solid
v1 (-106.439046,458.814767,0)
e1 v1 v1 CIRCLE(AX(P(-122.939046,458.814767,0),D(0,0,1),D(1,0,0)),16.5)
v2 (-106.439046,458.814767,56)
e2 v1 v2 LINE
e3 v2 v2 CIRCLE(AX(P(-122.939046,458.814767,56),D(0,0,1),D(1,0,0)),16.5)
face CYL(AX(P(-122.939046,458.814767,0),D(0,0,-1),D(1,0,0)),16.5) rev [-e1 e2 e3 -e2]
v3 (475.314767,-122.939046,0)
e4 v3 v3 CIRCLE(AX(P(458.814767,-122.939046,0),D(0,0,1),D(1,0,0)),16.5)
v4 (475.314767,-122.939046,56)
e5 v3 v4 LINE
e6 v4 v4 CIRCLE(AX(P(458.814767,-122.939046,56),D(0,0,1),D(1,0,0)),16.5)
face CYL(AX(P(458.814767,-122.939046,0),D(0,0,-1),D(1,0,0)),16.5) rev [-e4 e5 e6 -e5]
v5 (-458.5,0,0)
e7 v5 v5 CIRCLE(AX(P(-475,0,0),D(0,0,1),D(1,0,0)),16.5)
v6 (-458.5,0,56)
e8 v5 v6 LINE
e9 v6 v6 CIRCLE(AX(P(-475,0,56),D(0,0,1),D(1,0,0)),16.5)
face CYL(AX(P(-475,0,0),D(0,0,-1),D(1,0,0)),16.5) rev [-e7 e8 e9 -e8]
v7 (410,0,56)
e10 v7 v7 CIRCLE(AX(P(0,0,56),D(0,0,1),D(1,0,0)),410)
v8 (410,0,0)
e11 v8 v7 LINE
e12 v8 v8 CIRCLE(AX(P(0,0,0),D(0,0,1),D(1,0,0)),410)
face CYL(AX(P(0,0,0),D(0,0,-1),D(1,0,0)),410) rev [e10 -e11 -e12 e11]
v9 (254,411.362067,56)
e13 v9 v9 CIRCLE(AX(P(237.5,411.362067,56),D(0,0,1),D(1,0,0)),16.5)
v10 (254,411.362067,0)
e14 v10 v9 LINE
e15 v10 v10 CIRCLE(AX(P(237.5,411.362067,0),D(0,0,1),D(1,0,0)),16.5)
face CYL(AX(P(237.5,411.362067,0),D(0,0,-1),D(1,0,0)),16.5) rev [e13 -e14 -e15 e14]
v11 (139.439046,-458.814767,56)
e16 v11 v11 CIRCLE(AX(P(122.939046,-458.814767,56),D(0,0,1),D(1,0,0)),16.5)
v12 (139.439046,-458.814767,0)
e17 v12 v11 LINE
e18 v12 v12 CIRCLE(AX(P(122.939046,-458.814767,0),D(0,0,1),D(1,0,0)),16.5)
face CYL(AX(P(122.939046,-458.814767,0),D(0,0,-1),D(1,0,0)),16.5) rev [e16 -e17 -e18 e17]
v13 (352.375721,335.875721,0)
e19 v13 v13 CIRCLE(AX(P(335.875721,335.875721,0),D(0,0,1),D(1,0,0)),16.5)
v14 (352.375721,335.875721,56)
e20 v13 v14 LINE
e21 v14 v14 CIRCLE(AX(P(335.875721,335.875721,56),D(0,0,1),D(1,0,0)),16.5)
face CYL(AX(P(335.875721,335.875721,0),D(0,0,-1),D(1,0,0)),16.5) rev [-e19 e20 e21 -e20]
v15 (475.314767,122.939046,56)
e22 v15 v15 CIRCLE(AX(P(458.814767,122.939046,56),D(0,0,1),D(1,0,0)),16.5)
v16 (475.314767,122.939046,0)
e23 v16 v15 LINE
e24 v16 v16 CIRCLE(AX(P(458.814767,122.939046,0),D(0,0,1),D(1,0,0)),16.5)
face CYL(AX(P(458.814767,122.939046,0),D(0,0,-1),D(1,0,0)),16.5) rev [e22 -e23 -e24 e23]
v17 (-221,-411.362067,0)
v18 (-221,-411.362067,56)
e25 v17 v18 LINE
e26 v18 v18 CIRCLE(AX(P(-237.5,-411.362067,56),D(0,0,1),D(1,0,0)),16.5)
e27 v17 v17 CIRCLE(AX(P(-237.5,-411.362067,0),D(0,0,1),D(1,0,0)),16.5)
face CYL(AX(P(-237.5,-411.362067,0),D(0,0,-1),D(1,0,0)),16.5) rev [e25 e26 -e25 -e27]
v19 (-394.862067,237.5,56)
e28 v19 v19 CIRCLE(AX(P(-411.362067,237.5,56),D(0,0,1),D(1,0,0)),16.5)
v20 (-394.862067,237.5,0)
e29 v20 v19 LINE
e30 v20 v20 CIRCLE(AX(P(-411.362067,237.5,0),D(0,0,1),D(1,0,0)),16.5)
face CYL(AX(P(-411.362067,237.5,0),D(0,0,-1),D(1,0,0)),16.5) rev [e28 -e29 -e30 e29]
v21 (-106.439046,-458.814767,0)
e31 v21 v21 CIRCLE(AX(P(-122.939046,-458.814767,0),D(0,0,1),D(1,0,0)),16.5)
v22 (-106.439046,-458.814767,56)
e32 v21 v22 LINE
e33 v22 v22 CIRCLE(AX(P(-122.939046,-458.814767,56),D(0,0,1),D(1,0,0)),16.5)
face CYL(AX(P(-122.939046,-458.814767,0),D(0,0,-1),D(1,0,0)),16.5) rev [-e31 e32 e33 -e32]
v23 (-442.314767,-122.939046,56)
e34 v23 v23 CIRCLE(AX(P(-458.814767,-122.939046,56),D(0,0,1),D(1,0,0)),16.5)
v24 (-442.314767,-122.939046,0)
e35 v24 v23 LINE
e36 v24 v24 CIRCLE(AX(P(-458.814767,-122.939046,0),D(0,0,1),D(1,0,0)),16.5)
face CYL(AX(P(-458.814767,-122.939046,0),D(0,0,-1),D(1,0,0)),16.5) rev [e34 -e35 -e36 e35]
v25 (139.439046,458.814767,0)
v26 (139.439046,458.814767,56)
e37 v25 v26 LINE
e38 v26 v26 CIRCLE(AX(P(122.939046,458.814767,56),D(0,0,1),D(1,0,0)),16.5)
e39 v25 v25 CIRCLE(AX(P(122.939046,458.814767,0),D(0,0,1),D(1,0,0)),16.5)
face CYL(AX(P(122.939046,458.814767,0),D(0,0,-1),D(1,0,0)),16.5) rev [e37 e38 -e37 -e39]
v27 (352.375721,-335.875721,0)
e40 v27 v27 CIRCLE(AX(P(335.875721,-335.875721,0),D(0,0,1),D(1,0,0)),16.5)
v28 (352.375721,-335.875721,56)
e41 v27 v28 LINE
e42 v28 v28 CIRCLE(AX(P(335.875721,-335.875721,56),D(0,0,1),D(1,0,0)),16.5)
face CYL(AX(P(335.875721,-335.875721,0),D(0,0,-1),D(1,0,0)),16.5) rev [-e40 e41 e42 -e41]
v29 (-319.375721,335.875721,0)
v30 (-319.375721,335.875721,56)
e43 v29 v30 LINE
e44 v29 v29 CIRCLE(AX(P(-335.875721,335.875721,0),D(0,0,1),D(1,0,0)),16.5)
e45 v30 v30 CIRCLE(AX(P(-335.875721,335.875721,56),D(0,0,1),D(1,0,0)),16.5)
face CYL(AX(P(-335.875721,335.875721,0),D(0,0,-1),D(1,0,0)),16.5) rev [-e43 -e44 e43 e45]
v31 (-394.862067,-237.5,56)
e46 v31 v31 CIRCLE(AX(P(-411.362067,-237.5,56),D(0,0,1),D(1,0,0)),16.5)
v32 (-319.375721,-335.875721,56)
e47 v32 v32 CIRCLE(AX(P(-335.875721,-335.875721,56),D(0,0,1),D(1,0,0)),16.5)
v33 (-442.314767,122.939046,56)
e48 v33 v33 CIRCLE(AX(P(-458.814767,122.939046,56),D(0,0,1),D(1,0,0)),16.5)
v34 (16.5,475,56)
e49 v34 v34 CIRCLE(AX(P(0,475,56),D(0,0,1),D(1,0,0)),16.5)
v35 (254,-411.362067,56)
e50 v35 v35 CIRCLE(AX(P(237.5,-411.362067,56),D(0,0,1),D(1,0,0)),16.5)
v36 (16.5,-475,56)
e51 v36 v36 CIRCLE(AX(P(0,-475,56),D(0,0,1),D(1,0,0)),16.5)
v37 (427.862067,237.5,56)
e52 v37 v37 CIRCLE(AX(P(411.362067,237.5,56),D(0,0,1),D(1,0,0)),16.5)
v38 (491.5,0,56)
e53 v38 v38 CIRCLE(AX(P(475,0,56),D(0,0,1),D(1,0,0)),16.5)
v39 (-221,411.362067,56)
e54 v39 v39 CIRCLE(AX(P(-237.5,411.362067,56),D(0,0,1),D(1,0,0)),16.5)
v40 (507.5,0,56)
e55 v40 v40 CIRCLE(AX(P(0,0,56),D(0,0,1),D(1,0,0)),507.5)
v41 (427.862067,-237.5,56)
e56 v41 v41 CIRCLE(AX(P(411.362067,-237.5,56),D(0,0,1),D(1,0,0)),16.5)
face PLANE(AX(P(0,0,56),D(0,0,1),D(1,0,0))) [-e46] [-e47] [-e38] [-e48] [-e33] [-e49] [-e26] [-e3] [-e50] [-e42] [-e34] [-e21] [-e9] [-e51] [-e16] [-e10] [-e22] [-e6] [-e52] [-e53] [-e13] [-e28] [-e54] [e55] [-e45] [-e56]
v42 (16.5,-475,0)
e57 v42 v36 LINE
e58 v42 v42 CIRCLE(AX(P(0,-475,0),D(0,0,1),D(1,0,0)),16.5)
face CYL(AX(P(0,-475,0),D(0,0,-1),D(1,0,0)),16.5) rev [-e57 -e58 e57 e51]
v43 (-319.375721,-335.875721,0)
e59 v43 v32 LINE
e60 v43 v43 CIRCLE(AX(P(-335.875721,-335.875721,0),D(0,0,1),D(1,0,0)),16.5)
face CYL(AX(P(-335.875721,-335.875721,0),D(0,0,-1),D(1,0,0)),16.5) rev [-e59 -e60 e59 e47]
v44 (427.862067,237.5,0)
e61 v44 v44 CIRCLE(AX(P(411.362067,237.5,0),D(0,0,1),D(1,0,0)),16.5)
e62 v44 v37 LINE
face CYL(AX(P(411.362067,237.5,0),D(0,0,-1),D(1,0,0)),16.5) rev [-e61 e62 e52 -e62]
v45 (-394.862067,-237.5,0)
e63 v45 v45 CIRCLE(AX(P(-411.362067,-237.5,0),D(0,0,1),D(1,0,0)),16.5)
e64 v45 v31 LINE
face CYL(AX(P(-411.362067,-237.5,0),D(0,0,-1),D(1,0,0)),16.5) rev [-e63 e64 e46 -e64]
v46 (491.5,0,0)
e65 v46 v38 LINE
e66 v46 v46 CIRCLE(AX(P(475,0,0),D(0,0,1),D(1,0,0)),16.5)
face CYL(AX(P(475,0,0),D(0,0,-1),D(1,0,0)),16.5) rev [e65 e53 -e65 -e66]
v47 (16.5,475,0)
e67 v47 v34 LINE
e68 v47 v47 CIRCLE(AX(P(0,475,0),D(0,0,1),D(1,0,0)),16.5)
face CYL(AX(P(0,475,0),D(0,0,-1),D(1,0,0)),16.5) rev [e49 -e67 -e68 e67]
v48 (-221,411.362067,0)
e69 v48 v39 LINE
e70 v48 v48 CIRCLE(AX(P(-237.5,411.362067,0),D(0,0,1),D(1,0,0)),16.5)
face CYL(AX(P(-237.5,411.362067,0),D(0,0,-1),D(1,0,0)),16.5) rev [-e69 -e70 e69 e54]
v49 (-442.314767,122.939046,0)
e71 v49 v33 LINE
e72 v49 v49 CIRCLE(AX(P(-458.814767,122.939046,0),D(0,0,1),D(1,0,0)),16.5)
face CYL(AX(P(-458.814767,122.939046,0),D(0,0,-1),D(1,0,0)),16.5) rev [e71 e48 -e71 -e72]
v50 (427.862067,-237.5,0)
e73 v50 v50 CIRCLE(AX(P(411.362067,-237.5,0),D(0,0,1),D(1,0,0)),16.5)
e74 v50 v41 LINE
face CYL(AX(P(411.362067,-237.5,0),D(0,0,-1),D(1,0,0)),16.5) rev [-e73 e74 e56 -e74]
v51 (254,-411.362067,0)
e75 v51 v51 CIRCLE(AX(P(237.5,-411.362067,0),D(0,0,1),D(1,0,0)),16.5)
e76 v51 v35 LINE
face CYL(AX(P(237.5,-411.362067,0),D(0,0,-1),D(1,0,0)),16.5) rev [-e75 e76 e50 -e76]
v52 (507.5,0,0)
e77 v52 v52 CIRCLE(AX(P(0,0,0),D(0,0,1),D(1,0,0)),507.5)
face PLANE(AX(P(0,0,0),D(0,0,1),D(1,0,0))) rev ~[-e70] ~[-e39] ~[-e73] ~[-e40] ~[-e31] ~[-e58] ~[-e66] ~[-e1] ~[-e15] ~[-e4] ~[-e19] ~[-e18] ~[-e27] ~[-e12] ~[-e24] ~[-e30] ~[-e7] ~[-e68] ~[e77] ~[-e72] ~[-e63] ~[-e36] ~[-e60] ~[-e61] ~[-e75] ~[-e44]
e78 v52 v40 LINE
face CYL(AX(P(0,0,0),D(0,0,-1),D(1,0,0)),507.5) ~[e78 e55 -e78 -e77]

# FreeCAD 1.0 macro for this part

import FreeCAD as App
import Part
import Sketcher
Q = App.Units.Quantity

doc = App.newDocument("Part")
body = doc.addObject("PartDesign::Body", "Body")

sketch1 = body.newObject("Sketcher::SketchObject", "Sketch")
sketch1.AttachmentSupport = (doc.getObject("XY_Plane"), [""])
sketch1.MapMode = "FlatFace"
sketch1.addGeometry(Part.Circle(App.Vector(0, 0, 0), App.Vector(0, 0, 1), 507.5), False)
sketch1.addGeometry(Part.Circle(App.Vector(-335.875721, -335.875721, 0), App.Vector(0, 0, 1), 16.5), False)
sketch1.addGeometry(Part.Circle(App.Vector(-122.939046, -458.814767, 0), App.Vector(0, 0, 1), 16.5), False)
sketch1.addGeometry(Part.Circle(App.Vector(-237.5, -411.362067, 0), App.Vector(0, 0, 1), 16.5), False)
sketch1.addGeometry(Part.Circle(App.Vector(-411.362067, -237.5, 0), App.Vector(0, 0, 1), 16.5), False)
sketch1.addGeometry(Part.Circle(App.Vector(-458.814767, -122.939046, 0), App.Vector(0, 0, 1), 16.5), False)
sketch1.addGeometry(Part.Circle(App.Vector(0, -475, 0), App.Vector(0, 0, 1), 16.5), False)
sketch1.addGeometry(Part.Circle(App.Vector(122.939046, -458.814767, 0), App.Vector(0, 0, 1), 16.5), False)
sketch1.addGeometry(Part.Circle(App.Vector(237.5, -411.362067, 0), App.Vector(0, 0, 1), 16.5), False)
sketch1.addGeometry(Part.Circle(App.Vector(335.875721, -335.875721, 0), App.Vector(0, 0, 1), 16.5), False)
sketch1.addGeometry(Part.Circle(App.Vector(411.362067, -237.5, 0), App.Vector(0, 0, 1), 16.5), False)
sketch1.addGeometry(Part.Circle(App.Vector(458.814767, -122.939046, 0), App.Vector(0, 0, 1), 16.5), False)
sketch1.addGeometry(Part.Circle(App.Vector(-475, 0, 0), App.Vector(0, 0, 1), 16.5), False)
sketch1.addGeometry(Part.Circle(App.Vector(-458.814767, 122.939046, 0), App.Vector(0, 0, 1), 16.5), False)
sketch1.addGeometry(Part.Circle(App.Vector(-411.362067, 237.5, 0), App.Vector(0, 0, 1), 16.5), False)
sketch1.addGeometry(Part.Circle(App.Vector(-335.875721, 335.875721, 0), App.Vector(0, 0, 1), 16.5), False)
sketch1.addGeometry(Part.Circle(App.Vector(-237.5, 411.362067, 0), App.Vector(0, 0, 1), 16.5), False)
sketch1.addGeometry(Part.Circle(App.Vector(-122.939046, 458.814767, 0), App.Vector(0, 0, 1), 16.5), False)
sketch1.addGeometry(Part.Circle(App.Vector(0, 0, 0), App.Vector(0, 0, 1), 410), False)
sketch1.addGeometry(Part.Circle(App.Vector(475, 0, 0), App.Vector(0, 0, 1), 16.5), False)
sketch1.addGeometry(Part.Circle(App.Vector(458.814767, 122.939046, 0), App.Vector(0, 0, 1), 16.5), False)
sketch1.addGeometry(Part.Circle(App.Vector(411.362067, 237.5, 0), App.Vector(0, 0, 1), 16.5), False)
sketch1.addGeometry(Part.Circle(App.Vector(0, 475, 0), App.Vector(0, 0, 1), 16.5), False)
sketch1.addGeometry(Part.Circle(App.Vector(237.5, 411.362067, 0), App.Vector(0, 0, 1), 16.5), False)
sketch1.addGeometry(Part.Circle(App.Vector(122.939046, 458.814767, 0), App.Vector(0, 0, 1), 16.5), False)
sketch1.addGeometry(Part.Circle(App.Vector(335.875721, 335.875721, 0), App.Vector(0, 0, 1), 16.5), False)
sketch1.addConstraint(Sketcher.Constraint("Coincident", 0, 3, -1, 1))
sketch1.addConstraint(Sketcher.Constraint("Coincident", 18, 3, -1, 1))
sketch1.addConstraint(Sketcher.Constraint("Equal", 1, 2))
sketch1.addConstraint(Sketcher.Constraint("Equal", 2, 3))
sketch1.addConstraint(Sketcher.Constraint("Equal", 3, 4))
sketch1.addConstraint(Sketcher.Constraint("Equal", 4, 5))
sketch1.addConstraint(Sketcher.Constraint("Equal", 5, 6))
sketch1.addConstraint(Sketcher.Constraint("Equal", 6, 7))
sketch1.addConstraint(Sketcher.Constraint("Equal", 7, 8))
sketch1.addConstraint(Sketcher.Constraint("Equal", 8, 9))
sketch1.addConstraint(Sketcher.Constraint("Equal", 9, 10))
sketch1.addConstraint(Sketcher.Constraint("Equal", 10, 11))
sketch1.addConstraint(Sketcher.Constraint("Equal", 11, 12))
sketch1.addConstraint(Sketcher.Constraint("Equal", 12, 13))
sketch1.addConstraint(Sketcher.Constraint("Equal", 13, 14))
sketch1.addConstraint(Sketcher.Constraint("Equal", 14, 15))
sketch1.addConstraint(Sketcher.Constraint("Equal", 15, 16))
sketch1.addConstraint(Sketcher.Constraint("Equal", 16, 17))
sketch1.addConstraint(Sketcher.Constraint("Equal", 17, 19))
sketch1.addConstraint(Sketcher.Constraint("Equal", 19, 20))
sketch1.addConstraint(Sketcher.Constraint("Equal", 20, 21))
sketch1.addConstraint(Sketcher.Constraint("Equal", 21, 22))
sketch1.addConstraint(Sketcher.Constraint("Equal", 22, 23))
sketch1.addConstraint(Sketcher.Constraint("Equal", 23, 24))
sketch1.addConstraint(Sketcher.Constraint("Equal", 24, 25))
sketch1.addConstraint(Sketcher.Constraint("Symmetric", 11, 3, 13, 3, -1, 1))
sketch1.addConstraint(Sketcher.Constraint("Symmetric", 10, 3, 14, 3, -1, 1))
sketch1.addConstraint(Sketcher.Constraint("Symmetric", 9, 3, 15, 3, -1, 1))
sketch1.addConstraint(Sketcher.Constraint("Symmetric", 8, 3, 16, 3, -1, 1))
sketch1.addConstraint(Sketcher.Constraint("Symmetric", 7, 3, 17, 3, -1, 1))
sketch1.addConstraint(Sketcher.Constraint("Symmetric", 12, 3, 19, 3, -1, 1))
sketch1.addConstraint(Sketcher.Constraint("Symmetric", 5, 3, 20, 3, -1, 1))
sketch1.addConstraint(Sketcher.Constraint("Symmetric", 4, 3, 21, 3, -1, 1))
sketch1.addConstraint(Sketcher.Constraint("Symmetric", 6, 3, 22, 3, -1, 1))
sketch1.addConstraint(Sketcher.Constraint("Symmetric", 3, 3, 23, 3, -1, 1))
sketch1.addConstraint(Sketcher.Constraint("Symmetric", 2, 3, 24, 3, -1, 1))
sketch1.addConstraint(Sketcher.Constraint("Symmetric", 1, 3, 25, 3, -1, 1))
sketch1.addConstraint(Sketcher.Constraint("Symmetric", 2, 3, 7, 3, -2))
sketch1.addConstraint(Sketcher.Constraint("Symmetric", 3, 3, 8, 3, -2))
sketch1.addConstraint(Sketcher.Constraint("Symmetric", 1, 3, 9, 3, -2))
sketch1.addConstraint(Sketcher.Constraint("Symmetric", 4, 3, 10, 3, -2))
sketch1.addConstraint(Sketcher.Constraint("Symmetric", 5, 3, 11, 3, -2))
sketch1.addConstraint(Sketcher.Constraint("PointOnObject", 6, 3, -2))
sketch1.addConstraint(Sketcher.Constraint("PointOnObject", 12, 3, -1))
sketch1.addConstraint(Sketcher.Constraint("Diameter", 0, Q("1015 mm")))
sketch1.addConstraint(Sketcher.Constraint("Diameter", 1, Q("33 mm")))
sketch1.addConstraint(Sketcher.Constraint("Diameter", 18, Q("820 mm")))
sketch1.addConstraint(Sketcher.Constraint("DistanceY", 6, 3, -1, 1, Q("475 mm")))
sketch1.addConstraint(Sketcher.Constraint("DistanceX", 12, 3, -1, 1, Q("475 mm")))
sketch1.addConstraint(Sketcher.Constraint("DistanceX", 3, 3, 8, 3, Q("475 mm")))
sketch1.addConstraint(Sketcher.Constraint("DistanceY", 4, 3, 14, 3, Q("475 mm")))
sketch1.addConstraint(Sketcher.Constraint("DistanceY", 2, 3, 3, 3, Q("47.4527 mm")))
sketch1.addConstraint(Sketcher.Constraint("DistanceX", 5, 3, 4, 3, Q("47.4527 mm")))
sketch1.addConstraint(Sketcher.Constraint("DistanceX", 1, 3, -1, 1, Q("335.875721 mm")))
sketch1.addConstraint(Sketcher.Constraint("DistanceY", 1, 3, -1, 1, Q("335.875721 mm")))
sketch1.addConstraint(Sketcher.Constraint("DistanceX", 4, 3, 2, 3, Q("288.423021 mm")))
sketch1.addConstraint(Sketcher.Constraint("DistanceY", 3, 3, 5, 3, Q("288.423021 mm")))
sketch1.addConstraint(Sketcher.Constraint("DistanceX", 2, 3, -1, 1, Q("122.939046 mm")))
sketch1.addConstraint(Sketcher.Constraint("DistanceY", 2, 3, -1, 1, Q("458.814767 mm")))
pad1 = body.newObject("PartDesign::Pad", "Pad")
pad1.Profile = sketch1
pad1.Length = 56

doc.recompute()
